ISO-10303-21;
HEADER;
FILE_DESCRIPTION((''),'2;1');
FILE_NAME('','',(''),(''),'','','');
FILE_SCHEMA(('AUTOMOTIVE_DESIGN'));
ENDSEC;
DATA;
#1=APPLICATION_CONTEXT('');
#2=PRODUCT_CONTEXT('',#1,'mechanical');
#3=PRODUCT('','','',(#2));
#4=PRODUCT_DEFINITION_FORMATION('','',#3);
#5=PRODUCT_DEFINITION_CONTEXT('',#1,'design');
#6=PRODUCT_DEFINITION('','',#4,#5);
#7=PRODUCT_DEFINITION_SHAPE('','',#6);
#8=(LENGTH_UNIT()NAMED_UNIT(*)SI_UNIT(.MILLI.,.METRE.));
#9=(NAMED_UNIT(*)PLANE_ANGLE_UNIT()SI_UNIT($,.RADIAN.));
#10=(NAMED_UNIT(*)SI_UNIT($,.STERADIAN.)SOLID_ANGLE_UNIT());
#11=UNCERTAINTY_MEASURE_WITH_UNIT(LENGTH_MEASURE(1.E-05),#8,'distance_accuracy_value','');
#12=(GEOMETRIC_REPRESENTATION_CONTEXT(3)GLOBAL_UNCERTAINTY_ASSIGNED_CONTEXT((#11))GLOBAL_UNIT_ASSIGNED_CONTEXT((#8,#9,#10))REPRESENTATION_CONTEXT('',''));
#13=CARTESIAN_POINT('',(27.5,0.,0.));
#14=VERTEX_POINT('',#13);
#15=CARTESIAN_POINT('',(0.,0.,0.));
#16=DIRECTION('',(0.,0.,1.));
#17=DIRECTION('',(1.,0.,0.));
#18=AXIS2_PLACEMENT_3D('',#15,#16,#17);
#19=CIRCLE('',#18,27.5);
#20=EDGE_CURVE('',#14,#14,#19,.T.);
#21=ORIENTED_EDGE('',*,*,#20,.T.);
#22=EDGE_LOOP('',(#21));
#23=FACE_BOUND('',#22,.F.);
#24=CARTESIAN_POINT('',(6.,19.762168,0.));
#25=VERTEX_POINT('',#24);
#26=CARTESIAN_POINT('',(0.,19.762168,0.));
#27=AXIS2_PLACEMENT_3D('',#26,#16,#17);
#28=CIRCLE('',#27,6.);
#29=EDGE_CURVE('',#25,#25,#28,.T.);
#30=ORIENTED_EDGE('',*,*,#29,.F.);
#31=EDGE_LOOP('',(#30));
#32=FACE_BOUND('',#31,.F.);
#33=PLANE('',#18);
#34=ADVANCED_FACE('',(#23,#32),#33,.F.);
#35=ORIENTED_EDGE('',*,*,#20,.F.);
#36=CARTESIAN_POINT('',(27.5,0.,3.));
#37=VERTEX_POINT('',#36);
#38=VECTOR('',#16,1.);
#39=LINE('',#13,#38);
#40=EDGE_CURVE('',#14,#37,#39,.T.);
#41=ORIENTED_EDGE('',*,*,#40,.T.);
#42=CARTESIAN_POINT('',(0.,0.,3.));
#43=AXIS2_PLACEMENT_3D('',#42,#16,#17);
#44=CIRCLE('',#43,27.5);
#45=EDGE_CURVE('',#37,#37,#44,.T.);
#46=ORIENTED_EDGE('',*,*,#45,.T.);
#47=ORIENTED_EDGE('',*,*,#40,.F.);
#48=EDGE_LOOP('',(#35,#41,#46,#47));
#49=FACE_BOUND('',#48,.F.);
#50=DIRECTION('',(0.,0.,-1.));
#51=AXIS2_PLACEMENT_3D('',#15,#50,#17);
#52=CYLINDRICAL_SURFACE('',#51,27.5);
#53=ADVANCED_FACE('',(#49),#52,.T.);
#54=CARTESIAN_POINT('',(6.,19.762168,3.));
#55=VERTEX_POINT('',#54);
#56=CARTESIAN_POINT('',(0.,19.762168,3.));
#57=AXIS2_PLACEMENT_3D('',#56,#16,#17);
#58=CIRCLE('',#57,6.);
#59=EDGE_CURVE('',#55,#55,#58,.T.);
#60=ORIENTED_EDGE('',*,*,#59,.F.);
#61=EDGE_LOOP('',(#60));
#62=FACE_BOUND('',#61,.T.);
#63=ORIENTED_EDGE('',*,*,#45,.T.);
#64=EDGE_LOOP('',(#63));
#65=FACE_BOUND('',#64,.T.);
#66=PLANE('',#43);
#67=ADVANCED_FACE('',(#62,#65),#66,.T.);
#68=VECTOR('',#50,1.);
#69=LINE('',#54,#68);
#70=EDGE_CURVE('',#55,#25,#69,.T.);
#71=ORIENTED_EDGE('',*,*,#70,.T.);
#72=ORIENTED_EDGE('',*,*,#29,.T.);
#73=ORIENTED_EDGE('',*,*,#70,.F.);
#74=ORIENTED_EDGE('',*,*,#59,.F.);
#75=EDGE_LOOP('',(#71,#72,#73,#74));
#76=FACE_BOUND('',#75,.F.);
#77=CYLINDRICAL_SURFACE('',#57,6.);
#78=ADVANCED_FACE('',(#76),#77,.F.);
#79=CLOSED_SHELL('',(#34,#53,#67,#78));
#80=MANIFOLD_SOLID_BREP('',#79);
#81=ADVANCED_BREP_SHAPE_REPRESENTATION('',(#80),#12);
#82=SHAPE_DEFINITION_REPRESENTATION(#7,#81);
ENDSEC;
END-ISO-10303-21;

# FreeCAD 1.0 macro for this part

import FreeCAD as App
import Part
import Sketcher

V = App.Vector

doc = App.newDocument("Part")
params = doc.addObject("Spreadsheet::Sheet", "Params")
for row, (alias, value) in enumerate([
    ("sketch1_diameter", "55 mm"),
    ("pad1_length", "3 mm"),
    ("sketch2_diameter", "12 mm"),
], start=1):
    params.set(f"A{row}", alias)
    params.set(f"B{row}", "=" + value)
    params.setAlias(f"B{row}", alias)

body = doc.addObject("PartDesign::Body", "Body")

sketch1 = body.newObject("Sketcher::SketchObject", "Sketch")
sketch1.AttachmentSupport = (doc.getObject("XY_Plane"), [""])
sketch1.MapMode = "FlatFace"
sketch1.addGeometry(Part.Circle(V(0, 0, 0), V(0, 0, 1), 28), False)
sketch1.addConstraint([
    Sketcher.Constraint("Coincident", 0, 3, -1, 1),
    Sketcher.Constraint("Diameter", 0, 55.0),
])
sketch1.setExpression("Constraints[1]", "Params.sketch1_diameter")
pad1 = body.newObject("PartDesign::Pad", "Pad")
pad1.Profile = sketch1
pad1.setExpression("Length", "Params.pad1_length")

sketch2 = body.newObject("Sketcher::SketchObject", "Sketch001")
sketch2.AttachmentSupport = (doc.getObject("XY_Plane"), [""])
sketch2.MapMode = "FlatFace"
sketch2.AttachmentOffset = App.Placement(V(0, 0, 3), App.Rotation())
sketch2.addGeometry(Part.Circle(V(0, 20, 0), V(0, 0, 1), 6), False)
sketch2.addConstraint([
    Sketcher.Constraint("PointOnObject", 0, 3, -2),
    Sketcher.Constraint("Diameter", 0, 12.0),
    Sketcher.Constraint("DistanceY", -1, 1, 0, 3, 19.762168),
])
sketch2.setExpression("Constraints[1]", "Params.sketch2_diameter")
pocket1 = body.newObject("PartDesign::Pocket", "Pocket")
pocket1.Profile = sketch2
pocket1.Type = "ThroughAll"

doc.recompute()
